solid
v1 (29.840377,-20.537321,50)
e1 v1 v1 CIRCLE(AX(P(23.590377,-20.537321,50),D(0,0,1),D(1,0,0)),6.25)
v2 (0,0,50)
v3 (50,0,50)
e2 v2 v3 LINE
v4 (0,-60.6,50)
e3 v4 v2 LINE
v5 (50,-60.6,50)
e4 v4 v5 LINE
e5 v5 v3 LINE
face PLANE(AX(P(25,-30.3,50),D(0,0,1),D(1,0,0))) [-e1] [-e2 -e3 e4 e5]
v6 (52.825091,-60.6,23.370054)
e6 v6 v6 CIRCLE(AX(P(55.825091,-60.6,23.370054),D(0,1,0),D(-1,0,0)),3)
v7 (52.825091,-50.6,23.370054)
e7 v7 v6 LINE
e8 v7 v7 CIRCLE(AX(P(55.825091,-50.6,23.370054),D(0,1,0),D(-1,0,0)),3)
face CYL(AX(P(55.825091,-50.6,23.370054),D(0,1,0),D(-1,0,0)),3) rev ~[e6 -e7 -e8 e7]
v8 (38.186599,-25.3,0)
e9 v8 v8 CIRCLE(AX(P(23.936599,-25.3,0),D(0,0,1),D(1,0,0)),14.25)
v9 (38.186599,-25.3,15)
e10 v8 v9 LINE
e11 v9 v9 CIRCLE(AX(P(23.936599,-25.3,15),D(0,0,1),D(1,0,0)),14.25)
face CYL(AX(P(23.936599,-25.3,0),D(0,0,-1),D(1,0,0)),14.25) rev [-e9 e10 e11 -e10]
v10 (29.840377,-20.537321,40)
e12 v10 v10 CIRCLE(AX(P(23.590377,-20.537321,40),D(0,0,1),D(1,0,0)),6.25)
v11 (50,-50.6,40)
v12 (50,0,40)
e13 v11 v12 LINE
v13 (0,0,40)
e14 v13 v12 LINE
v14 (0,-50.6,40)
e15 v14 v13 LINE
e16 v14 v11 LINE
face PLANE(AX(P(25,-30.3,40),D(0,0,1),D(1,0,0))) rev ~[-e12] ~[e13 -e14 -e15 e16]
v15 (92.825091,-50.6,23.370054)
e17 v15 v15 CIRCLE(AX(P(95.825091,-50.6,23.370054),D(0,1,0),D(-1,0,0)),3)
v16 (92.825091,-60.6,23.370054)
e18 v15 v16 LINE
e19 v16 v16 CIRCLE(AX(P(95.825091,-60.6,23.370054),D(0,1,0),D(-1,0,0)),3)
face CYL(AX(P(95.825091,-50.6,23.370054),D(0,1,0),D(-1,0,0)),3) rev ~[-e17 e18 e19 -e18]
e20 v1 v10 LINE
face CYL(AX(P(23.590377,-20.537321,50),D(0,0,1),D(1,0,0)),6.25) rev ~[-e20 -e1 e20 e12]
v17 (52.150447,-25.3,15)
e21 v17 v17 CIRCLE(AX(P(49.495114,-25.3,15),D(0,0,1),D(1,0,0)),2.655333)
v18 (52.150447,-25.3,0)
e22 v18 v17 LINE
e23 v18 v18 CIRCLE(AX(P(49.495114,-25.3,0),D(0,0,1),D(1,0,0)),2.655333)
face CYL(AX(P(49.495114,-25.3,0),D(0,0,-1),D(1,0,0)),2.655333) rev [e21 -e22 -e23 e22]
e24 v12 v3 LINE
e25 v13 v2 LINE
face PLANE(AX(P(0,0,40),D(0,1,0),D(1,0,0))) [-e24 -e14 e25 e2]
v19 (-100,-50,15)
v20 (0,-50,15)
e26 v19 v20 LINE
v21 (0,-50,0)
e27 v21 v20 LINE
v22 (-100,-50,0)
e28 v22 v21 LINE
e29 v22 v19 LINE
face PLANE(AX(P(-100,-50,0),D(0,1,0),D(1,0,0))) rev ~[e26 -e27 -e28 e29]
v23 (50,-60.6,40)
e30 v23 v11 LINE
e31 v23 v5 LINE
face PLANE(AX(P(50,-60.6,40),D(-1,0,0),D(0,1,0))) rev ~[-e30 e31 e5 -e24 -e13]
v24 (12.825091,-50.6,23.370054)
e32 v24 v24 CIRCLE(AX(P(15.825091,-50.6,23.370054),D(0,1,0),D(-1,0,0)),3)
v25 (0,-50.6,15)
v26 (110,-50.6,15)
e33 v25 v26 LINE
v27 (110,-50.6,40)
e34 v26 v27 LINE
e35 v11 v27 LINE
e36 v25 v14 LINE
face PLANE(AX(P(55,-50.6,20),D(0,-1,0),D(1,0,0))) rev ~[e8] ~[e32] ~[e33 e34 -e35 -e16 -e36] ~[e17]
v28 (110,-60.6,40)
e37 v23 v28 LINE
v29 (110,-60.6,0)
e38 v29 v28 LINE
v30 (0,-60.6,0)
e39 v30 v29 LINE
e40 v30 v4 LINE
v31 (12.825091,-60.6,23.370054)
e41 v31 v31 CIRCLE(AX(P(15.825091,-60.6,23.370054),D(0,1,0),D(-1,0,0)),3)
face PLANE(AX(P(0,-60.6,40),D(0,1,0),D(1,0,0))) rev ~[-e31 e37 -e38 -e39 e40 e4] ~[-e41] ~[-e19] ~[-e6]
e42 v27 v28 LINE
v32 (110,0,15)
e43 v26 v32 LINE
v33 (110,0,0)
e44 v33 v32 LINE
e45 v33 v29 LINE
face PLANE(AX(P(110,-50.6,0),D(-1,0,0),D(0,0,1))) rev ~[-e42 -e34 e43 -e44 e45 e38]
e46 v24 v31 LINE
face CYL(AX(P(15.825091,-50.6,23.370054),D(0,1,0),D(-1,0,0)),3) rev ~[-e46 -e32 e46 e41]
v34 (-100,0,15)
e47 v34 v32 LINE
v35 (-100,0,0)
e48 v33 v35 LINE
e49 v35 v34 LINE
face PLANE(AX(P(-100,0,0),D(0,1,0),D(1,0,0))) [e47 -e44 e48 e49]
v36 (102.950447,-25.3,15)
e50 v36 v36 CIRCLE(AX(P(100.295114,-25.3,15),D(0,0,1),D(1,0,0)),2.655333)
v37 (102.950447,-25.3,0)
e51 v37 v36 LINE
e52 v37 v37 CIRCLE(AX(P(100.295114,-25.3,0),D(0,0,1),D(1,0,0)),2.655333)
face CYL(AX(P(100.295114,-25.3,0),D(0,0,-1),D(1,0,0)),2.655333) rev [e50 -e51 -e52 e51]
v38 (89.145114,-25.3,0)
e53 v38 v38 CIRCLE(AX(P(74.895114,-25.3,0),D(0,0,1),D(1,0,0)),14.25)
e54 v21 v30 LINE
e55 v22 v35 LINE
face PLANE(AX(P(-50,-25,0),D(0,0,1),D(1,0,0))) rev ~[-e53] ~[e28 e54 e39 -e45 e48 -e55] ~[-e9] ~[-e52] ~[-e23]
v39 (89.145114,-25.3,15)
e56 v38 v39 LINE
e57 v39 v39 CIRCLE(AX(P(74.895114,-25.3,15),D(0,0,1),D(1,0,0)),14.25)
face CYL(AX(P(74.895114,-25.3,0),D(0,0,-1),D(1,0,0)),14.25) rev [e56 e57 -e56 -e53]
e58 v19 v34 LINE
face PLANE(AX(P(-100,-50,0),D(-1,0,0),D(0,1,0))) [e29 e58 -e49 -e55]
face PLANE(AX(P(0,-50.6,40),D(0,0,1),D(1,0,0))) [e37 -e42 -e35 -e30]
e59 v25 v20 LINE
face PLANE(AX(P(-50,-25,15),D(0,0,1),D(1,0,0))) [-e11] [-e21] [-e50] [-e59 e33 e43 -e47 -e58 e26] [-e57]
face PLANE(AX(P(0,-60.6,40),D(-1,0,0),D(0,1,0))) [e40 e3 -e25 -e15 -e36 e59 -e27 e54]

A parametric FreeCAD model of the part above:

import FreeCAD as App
import Part
import Sketcher
from FreeCAD import Vector
Q = App.Units.Quantity

doc = App.newDocument("Part")
params = doc.addObject("Spreadsheet::Sheet", "Params")
for row, (alias, value) in enumerate([
    ("sketch1_diameter", "28.5 mm"),
    ("sketch1_width", "110 mm"),
    ("sketch1_height", "50.6 mm"),
    ("pad1_length", "15 mm"),
    ("sketch2_width", "110 mm"),
    ("sketch2_height", "40 mm"),
    ("pad2_length", "10 mm"),
    ("sketch3_diameter", "6 mm"),
    ("pocket1_length", "25 mm"),
    ("sketch4_width", "50 mm"),
    ("sketch4_height", "60.6 mm"),
    ("pad3_length", "10 mm"),
    ("sketch5_diameter", "12.5 mm"),
    ("pocket2_length", "25 mm"),
    ("sketch6_width", "100 mm"),
    ("sketch6_height", "50 mm"),
    ("pad4_length", "15 mm"),
], start=1):
    params.set(f"A{row}", alias)
    params.set(f"B{row}", "=" + value)
    params.setAlias(f"B{row}", alias)

body = doc.addObject("PartDesign::Body", "Body")

sketch1 = body.newObject("Sketcher::SketchObject", "Sketch")
sketch1.AttachmentSupport = (doc.getObject("XY_Plane"), [""])
sketch1.MapMode = "FlatFace"
sketch1.addGeometry([
    Part.LineSegment(Vector(0, 0, 0), Vector(0, -50.6, 0)),
    Part.LineSegment(Vector(0, -50.6, 0), Vector(110, -50.6, 0)),
    Part.LineSegment(Vector(110, -50.6, 0), Vector(110, 0, 0)),
    Part.LineSegment(Vector(110, 0, 0), Vector(0, 0, 0)),
    Part.Circle(Vector(23.936599, -25.3, 0), Vector(0, 0, 1), 14.25),
    Part.Circle(Vector(49.495114, -25.3, 0), Vector(0, 0, 1), 2.655333),
    Part.Circle(Vector(74.895114, -25.3, 0), Vector(0, 0, 1), 14.25),
    Part.Circle(Vector(100.295114, -25.3, 0), Vector(0, 0, 1), 2.655333),
], False)
sketch1.addConstraint([
    Sketcher.Constraint("Coincident", 0, 2, 1, 1),
    Sketcher.Constraint("Coincident", 1, 2, 2, 1),
    Sketcher.Constraint("Coincident", 2, 2, 3, 1),
    Sketcher.Constraint("Coincident", 3, 2, 0, 1),
    Sketcher.Constraint("Vertical", 0),
    Sketcher.Constraint("Horizontal", 1),
    Sketcher.Constraint("Vertical", 2),
    Sketcher.Constraint("Horizontal", 3),
    Sketcher.Constraint("Coincident", 3, 2, -1, 1),
    Sketcher.Constraint("Equal", 4, 6),
    Sketcher.Constraint("Equal", 5, 7),
    Sketcher.Constraint("Horizontal", 4, 3, 5, 3),
    Sketcher.Constraint("Horizontal", 5, 3, 6, 3),
    Sketcher.Constraint("Horizontal", 6, 3, 7, 3),
    Sketcher.Constraint("Diameter", 4, Q("28.5 mm")),
    Sketcher.Constraint("DistanceX", 1, 1, 1, 2, Q("110 mm")),
    Sketcher.Constraint("DistanceY", 0, 2, 0, 1, Q("50.6 mm")),
    Sketcher.Constraint("DistanceY", 4, 3, -1, 1, Q("25.3 mm")),
    Sketcher.Constraint("DistanceX", 5, 3, 6, 3, Q("25.4 mm")),
    Sketcher.Constraint("DistanceX", 6, 3, 7, 3, Q("25.4 mm")),
    Sketcher.Constraint("Diameter", 5, Q("5.310666 mm")),
    Sketcher.Constraint("DistanceX", -1, 1, 4, 3, Q("23.936599 mm")),
    Sketcher.Constraint("DistanceX", -1, 1, 5, 3, Q("49.495114 mm")),
])
sketch1.setExpression("Constraints[14]", "Params.sketch1_diameter")
sketch1.setExpression("Constraints[15]", "Params.sketch1_width")
sketch1.setExpression("Constraints[16]", "Params.sketch1_height")
pad1 = body.newObject("PartDesign::Pad", "Pad")
pad1.Profile = sketch1
pad1.setExpression("Length", "Params.pad1_length")

sketch2 = body.newObject("Sketcher::SketchObject", "Sketch001")
sketch2.AttachmentSupport = (doc.getObject("XZ_Plane"), [""])
sketch2.MapMode = "FlatFace"
sketch2.AttachmentOffset = App.Placement(Vector(0, 0, 50.6), App.Rotation())
sketch2.addGeometry([
    Part.LineSegment(Vector(0, 40, 0), Vector(0, 0, 0)),
    Part.LineSegment(Vector(0, 0, 0), Vector(110, 0, 0)),
    Part.LineSegment(Vector(110, 0, 0), Vector(110, 40, 0)),
    Part.LineSegment(Vector(110, 40, 0), Vector(0, 40, 0)),
], False)
sketch2.addConstraint([
    Sketcher.Constraint("Coincident", 0, 2, 1, 1),
    Sketcher.Constraint("Coincident", 1, 2, 2, 1),
    Sketcher.Constraint("Coincident", 2, 2, 3, 1),
    Sketcher.Constraint("Coincident", 3, 2, 0, 1),
    Sketcher.Constraint("Vertical", 0),
    Sketcher.Constraint("Horizontal", 1),
    Sketcher.Constraint("Vertical", 2),
    Sketcher.Constraint("Horizontal", 3),
    Sketcher.Constraint("Coincident", 0, 2, -1, 1),
    Sketcher.Constraint("DistanceX", 1, 1, 1, 2, Q("110 mm")),
    Sketcher.Constraint("DistanceY", 0, 2, 0, 1, Q("40 mm")),
])
sketch2.setExpression("Constraints[9]", "Params.sketch2_width")
sketch2.setExpression("Constraints[10]", "Params.sketch2_height")
pad2 = body.newObject("PartDesign::Pad", "Pad001")
pad2.Profile = sketch2
pad2.setExpression("Length", "Params.pad2_length")

sketch3 = body.newObject("Sketcher::SketchObject", "Sketch002")
sketch3.AttachmentSupport = (doc.getObject("XZ_Plane"), [""])
sketch3.MapMode = "FlatFace"
sketch3.AttachmentOffset = App.Placement(Vector(0, 0, 50.6), App.Rotation())
sketch3.addGeometry([
    Part.Circle(Vector(95.825091, 23.370054, 0), Vector(0, 0, 1), 3),
    Part.Circle(Vector(55.825091, 23.370054, 0), Vector(0, 0, 1), 3),
    Part.Circle(Vector(15.825091, 23.370054, 0), Vector(0, 0, 1), 3),
], False)
sketch3.addConstraint([
    Sketcher.Constraint("Equal", 0, 1),
    Sketcher.Constraint("Equal", 1, 2),
    Sketcher.Constraint("Horizontal", 0, 3, 1, 3),
    Sketcher.Constraint("Horizontal", 1, 3, 2, 3),
    Sketcher.Constraint("Diameter", 0, Q("6 mm")),
    Sketcher.Constraint("DistanceX", 1, 3, 0, 3, Q("40 mm")),
    Sketcher.Constraint("DistanceX", 2, 3, 1, 3, Q("40 mm")),
    Sketcher.Constraint("DistanceX", -1, 1, 0, 3, Q("95.825091 mm")),
    Sketcher.Constraint("DistanceY", -1, 1, 0, 3, Q("23.370054 mm")),
])
sketch3.setExpression("Constraints[4]", "Params.sketch3_diameter")
pocket1 = body.newObject("PartDesign::Pocket", "Pocket")
pocket1.Profile = sketch3
pocket1.setExpression("Length", "Params.pocket1_length")
pocket1.Reversed = True

sketch4 = body.newObject("Sketcher::SketchObject", "Sketch003")
sketch4.AttachmentSupport = (doc.getObject("XY_Plane"), [""])
sketch4.MapMode = "FlatFace"
sketch4.AttachmentOffset = App.Placement(Vector(0, 0, 40), App.Rotation())
sketch4.addGeometry([
    Part.LineSegment(Vector(0, 0, 0), Vector(0, -60.6, 0)),
    Part.LineSegment(Vector(0, -60.6, 0), Vector(50, -60.6, 0)),
    Part.LineSegment(Vector(50, -60.6, 0), Vector(50, 0, 0)),
    Part.LineSegment(Vector(50, 0, 0), Vector(0, 0, 0)),
], False)
sketch4.addConstraint([
    Sketcher.Constraint("Coincident", 0, 2, 1, 1),
    Sketcher.Constraint("Coincident", 1, 2, 2, 1),
    Sketcher.Constraint("Coincident", 2, 2, 3, 1),
    Sketcher.Constraint("Coincident", 3, 2, 0, 1),
    Sketcher.Constraint("Vertical", 0),
    Sketcher.Constraint("Horizontal", 1),
    Sketcher.Constraint("Vertical", 2),
    Sketcher.Constraint("Horizontal", 3),
    Sketcher.Constraint("Coincident", 3, 2, -1, 1),
    Sketcher.Constraint("DistanceX", 1, 1, 1, 2, Q("50 mm")),
    Sketcher.Constraint("DistanceY", 0, 2, 0, 1, Q("60.6 mm")),
])
sketch4.setExpression("Constraints[9]", "Params.sketch4_width")
sketch4.setExpression("Constraints[10]", "Params.sketch4_height")
pad3 = body.newObject("PartDesign::Pad", "Pad002")
pad3.Profile = sketch4
pad3.setExpression("Length", "Params.pad3_length")

sketch5 = body.newObject("Sketcher::SketchObject", "Sketch004")
sketch5.AttachmentSupport = (doc.getObject("XY_Plane"), [""])
sketch5.MapMode = "FlatFace"
sketch5.AttachmentOffset = App.Placement(Vector(0, 0, 50), App.Rotation())
sketch5.addGeometry(Part.Circle(Vector(23.590377, -20.537321, 0), Vector(0, 0, 1), 6.25), False)
sketch5.addConstraint([
    Sketcher.Constraint("Diameter", 0, Q("12.5 mm")),
    Sketcher.Constraint("DistanceY", 0, 3, -1, 1, Q("20.537321 mm")),
    Sketcher.Constraint("DistanceX", -1, 1, 0, 3, Q("23.590377 mm")),
])
sketch5.setExpression("Constraints[0]", "Params.sketch5_diameter")
pocket2 = body.newObject("PartDesign::Pocket", "Pocket001")
pocket2.Profile = sketch5
pocket2.setExpression("Length", "Params.pocket2_length")

sketch6 = body.newObject("Sketcher::SketchObject", "Sketch005")
sketch6.AttachmentSupport = (doc.getObject("XY_Plane"), [""])
sketch6.MapMode = "FlatFace"
sketch6.addGeometry([
    Part.LineSegment(Vector(-100, 0, 0), Vector(-100, -50, 0)),
    Part.LineSegment(Vector(-100, -50, 0), Vector(0, -50, 0)),
    Part.LineSegment(Vector(0, -50, 0), Vector(0, 0, 0)),
    Part.LineSegment(Vector(0, 0, 0), Vector(-100, 0, 0)),
], False)
sketch6.addConstraint([
    Sketcher.Constraint("Coincident", 0, 2, 1, 1),
    Sketcher.Constraint("Coincident", 1, 2, 2, 1),
    Sketcher.Constraint("Coincident", 2, 2, 3, 1),
    Sketcher.Constraint("Coincident", 3, 2, 0, 1),
    Sketcher.Constraint("Vertical", 0),
    Sketcher.Constraint("Horizontal", 1),
    Sketcher.Constraint("Vertical", 2),
    Sketcher.Constraint("Horizontal", 3),
    Sketcher.Constraint("Coincident", 2, 2, -1, 1),
    Sketcher.Constraint("DistanceX", 1, 1, 1, 2, Q("100 mm")),
    Sketcher.Constraint("DistanceY", 0, 2, 0, 1, Q("50 mm")),
])
sketch6.setExpression("Constraints[9]", "Params.sketch6_width")
sketch6.setExpression("Constraints[10]", "Params.sketch6_height")
pad4 = body.newObject("PartDesign::Pad", "Pad003")
pad4.Profile = sketch6
pad4.setExpression("Length", "Params.pad4_length")

doc.recompute()
